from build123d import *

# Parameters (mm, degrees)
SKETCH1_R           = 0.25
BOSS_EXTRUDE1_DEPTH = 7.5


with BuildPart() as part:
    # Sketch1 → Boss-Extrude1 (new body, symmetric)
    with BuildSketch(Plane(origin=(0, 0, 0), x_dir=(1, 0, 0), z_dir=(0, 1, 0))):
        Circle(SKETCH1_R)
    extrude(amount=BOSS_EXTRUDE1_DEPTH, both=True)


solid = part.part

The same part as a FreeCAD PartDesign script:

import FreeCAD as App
import Part
import Sketcher

V = App.Vector
Q = App.Units.Quantity

doc = App.newDocument("Part")
body = doc.addObject("PartDesign::Body", "Body")

# Sketch on XZ plane
sketch1 = body.newObject("Sketcher::SketchObject", "Sketch")
sketch1.AttachmentSupport = (doc.getObject("XZ_Plane"), [""])
sketch1.MapMode = "FlatFace"
sketch1.addGeometry(Part.Circle(V(0, 0, 0), V(0, 0, 1), 0.25), False)
sketch1.addConstraint(Sketcher.Constraint("Coincident", 0, 3, -1, 1))
sketch1.addConstraint(Sketcher.Constraint("Diameter", 0, Q("0.5 mm")))
pad1 = body.newObject("PartDesign::Pad", "Pad")
pad1.Profile = sketch1
pad1.Length = 15
pad1.Midplane = True

doc.recompute()
